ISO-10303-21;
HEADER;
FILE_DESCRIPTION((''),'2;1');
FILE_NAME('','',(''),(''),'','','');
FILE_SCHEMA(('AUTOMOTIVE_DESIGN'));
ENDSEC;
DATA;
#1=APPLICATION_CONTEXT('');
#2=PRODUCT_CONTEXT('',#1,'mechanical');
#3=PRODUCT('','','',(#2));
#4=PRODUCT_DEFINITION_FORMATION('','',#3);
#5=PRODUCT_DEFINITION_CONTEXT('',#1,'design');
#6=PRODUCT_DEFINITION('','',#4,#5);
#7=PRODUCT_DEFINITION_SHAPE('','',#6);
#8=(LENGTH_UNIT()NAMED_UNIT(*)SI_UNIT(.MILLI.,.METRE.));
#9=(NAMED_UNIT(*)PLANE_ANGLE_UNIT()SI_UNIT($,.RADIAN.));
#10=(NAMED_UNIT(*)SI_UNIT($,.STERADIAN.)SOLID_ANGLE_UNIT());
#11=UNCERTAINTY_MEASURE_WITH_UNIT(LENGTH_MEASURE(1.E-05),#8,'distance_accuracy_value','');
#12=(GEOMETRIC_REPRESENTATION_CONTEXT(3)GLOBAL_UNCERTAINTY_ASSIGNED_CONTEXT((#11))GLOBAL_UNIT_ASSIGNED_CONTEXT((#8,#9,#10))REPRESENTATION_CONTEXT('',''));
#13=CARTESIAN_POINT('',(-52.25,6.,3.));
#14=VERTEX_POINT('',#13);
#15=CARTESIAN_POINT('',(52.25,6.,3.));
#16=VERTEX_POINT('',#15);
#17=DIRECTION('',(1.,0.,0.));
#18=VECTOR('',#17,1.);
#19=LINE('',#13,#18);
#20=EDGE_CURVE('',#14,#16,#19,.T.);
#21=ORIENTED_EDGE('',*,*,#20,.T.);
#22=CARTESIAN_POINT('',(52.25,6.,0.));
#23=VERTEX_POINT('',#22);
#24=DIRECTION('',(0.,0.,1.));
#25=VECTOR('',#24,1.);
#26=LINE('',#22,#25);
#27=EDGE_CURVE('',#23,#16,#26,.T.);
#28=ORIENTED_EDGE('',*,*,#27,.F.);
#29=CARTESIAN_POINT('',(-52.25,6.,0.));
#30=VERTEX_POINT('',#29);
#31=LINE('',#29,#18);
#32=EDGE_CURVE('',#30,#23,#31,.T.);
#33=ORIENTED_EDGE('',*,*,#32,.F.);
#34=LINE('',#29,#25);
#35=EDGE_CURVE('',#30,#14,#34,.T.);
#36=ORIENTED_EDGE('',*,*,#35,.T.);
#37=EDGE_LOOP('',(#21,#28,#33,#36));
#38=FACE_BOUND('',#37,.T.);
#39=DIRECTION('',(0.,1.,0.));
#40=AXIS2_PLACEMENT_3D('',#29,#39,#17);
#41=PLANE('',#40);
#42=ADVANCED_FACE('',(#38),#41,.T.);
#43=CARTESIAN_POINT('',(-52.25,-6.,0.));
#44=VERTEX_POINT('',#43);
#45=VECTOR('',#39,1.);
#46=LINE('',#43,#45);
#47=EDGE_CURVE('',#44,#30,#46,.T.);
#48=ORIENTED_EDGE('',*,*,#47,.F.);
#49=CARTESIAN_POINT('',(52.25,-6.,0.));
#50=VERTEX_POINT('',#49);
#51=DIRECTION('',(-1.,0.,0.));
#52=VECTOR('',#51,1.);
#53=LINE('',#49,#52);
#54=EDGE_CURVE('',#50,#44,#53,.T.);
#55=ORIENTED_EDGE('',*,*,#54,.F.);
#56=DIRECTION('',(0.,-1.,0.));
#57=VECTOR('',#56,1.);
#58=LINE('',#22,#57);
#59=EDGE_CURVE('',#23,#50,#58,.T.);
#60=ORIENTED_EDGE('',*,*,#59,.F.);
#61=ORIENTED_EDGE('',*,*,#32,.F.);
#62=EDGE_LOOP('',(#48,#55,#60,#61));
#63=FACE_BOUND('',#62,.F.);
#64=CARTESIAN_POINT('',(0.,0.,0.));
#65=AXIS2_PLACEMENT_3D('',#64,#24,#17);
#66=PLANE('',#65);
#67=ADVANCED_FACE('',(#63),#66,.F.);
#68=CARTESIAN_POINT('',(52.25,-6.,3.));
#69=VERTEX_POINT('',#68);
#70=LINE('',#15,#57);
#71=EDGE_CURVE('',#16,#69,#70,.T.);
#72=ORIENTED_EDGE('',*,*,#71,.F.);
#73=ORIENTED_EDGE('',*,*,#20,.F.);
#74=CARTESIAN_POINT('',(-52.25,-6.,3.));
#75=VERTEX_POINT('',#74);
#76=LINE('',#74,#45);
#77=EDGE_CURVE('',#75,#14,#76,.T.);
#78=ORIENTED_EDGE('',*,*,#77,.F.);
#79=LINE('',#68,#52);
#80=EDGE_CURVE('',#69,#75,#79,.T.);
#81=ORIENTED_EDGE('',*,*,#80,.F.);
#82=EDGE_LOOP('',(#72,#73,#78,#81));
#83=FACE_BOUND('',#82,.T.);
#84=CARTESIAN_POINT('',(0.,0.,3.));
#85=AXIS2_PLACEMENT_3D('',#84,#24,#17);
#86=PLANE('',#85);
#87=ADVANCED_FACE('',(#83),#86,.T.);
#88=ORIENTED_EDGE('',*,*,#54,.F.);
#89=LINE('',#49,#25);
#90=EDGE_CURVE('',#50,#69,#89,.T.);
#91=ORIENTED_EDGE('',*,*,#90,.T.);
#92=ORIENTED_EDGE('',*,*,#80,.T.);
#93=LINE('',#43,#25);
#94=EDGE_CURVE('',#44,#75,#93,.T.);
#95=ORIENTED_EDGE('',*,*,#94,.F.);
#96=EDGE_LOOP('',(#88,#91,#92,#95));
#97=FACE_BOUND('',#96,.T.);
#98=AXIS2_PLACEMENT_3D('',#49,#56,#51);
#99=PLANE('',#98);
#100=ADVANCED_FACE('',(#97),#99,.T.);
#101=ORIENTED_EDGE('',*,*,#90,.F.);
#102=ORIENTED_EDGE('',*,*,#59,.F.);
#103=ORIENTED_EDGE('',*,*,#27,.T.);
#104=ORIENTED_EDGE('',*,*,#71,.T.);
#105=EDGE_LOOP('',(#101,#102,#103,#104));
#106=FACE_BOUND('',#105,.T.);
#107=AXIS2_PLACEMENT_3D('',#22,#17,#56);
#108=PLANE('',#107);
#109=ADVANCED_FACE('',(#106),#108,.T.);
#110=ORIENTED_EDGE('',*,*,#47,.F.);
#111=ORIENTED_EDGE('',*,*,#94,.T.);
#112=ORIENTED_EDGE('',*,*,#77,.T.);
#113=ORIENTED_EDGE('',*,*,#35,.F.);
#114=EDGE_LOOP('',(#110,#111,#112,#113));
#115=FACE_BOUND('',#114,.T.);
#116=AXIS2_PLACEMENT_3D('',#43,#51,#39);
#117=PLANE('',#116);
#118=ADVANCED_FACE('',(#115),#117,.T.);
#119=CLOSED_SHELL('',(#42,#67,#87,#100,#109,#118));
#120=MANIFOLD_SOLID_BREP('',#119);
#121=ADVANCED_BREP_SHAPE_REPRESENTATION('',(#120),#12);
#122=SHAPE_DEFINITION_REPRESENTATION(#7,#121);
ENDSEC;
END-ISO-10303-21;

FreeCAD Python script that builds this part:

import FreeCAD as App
import Part
import Sketcher

V = App.Vector
Q = App.Units.Quantity

doc = App.newDocument("Part")
body = doc.addObject("PartDesign::Body", "Body")

sketch1 = body.newObject("Sketcher::SketchObject", "Sketch")
sketch1.AttachmentSupport = (doc.getObject("XY_Plane"), [""])
sketch1.MapMode = "FlatFace"
sketch1.addGeometry(Part.LineSegment(V(52, 6, 0), V(-52, 6, 0)), False)
sketch1.addGeometry(Part.LineSegment(V(-52, 6, 0), V(-52, -6, 0)), False)
sketch1.addGeometry(Part.LineSegment(V(-52, -6, 0), V(52, -6, 0)), False)
sketch1.addGeometry(Part.LineSegment(V(52, -6, 0), V(52, 6, 0)), False)
sketch1.addConstraint(Sketcher.Constraint("Coincident", 0, 2, 1, 1))
sketch1.addConstraint(Sketcher.Constraint("Coincident", 1, 2, 2, 1))
sketch1.addConstraint(Sketcher.Constraint("Coincident", 2, 2, 3, 1))
sketch1.addConstraint(Sketcher.Constraint("Coincident", 3, 2, 0, 1))
sketch1.addConstraint(Sketcher.Constraint("Horizontal", 0))
sketch1.addConstraint(Sketcher.Constraint("Vertical", 1))
sketch1.addConstraint(Sketcher.Constraint("Horizontal", 2))
sketch1.addConstraint(Sketcher.Constraint("Vertical", 3))
sketch1.addConstraint(Sketcher.Constraint("Symmetric", 0, 2, 2, 2, -1, 1))
sketch1.addConstraint(Sketcher.Constraint("DistanceY", 1, 2, 1, 1, Q("12 mm")))
sketch1.addConstraint(Sketcher.Constraint("DistanceX", 0, 2, 0, 1, Q("104.5 mm")))
pad1 = body.newObject("PartDesign::Pad", "Pad")
pad1.Profile = sketch1
pad1.Length = 3

doc.recompute()
